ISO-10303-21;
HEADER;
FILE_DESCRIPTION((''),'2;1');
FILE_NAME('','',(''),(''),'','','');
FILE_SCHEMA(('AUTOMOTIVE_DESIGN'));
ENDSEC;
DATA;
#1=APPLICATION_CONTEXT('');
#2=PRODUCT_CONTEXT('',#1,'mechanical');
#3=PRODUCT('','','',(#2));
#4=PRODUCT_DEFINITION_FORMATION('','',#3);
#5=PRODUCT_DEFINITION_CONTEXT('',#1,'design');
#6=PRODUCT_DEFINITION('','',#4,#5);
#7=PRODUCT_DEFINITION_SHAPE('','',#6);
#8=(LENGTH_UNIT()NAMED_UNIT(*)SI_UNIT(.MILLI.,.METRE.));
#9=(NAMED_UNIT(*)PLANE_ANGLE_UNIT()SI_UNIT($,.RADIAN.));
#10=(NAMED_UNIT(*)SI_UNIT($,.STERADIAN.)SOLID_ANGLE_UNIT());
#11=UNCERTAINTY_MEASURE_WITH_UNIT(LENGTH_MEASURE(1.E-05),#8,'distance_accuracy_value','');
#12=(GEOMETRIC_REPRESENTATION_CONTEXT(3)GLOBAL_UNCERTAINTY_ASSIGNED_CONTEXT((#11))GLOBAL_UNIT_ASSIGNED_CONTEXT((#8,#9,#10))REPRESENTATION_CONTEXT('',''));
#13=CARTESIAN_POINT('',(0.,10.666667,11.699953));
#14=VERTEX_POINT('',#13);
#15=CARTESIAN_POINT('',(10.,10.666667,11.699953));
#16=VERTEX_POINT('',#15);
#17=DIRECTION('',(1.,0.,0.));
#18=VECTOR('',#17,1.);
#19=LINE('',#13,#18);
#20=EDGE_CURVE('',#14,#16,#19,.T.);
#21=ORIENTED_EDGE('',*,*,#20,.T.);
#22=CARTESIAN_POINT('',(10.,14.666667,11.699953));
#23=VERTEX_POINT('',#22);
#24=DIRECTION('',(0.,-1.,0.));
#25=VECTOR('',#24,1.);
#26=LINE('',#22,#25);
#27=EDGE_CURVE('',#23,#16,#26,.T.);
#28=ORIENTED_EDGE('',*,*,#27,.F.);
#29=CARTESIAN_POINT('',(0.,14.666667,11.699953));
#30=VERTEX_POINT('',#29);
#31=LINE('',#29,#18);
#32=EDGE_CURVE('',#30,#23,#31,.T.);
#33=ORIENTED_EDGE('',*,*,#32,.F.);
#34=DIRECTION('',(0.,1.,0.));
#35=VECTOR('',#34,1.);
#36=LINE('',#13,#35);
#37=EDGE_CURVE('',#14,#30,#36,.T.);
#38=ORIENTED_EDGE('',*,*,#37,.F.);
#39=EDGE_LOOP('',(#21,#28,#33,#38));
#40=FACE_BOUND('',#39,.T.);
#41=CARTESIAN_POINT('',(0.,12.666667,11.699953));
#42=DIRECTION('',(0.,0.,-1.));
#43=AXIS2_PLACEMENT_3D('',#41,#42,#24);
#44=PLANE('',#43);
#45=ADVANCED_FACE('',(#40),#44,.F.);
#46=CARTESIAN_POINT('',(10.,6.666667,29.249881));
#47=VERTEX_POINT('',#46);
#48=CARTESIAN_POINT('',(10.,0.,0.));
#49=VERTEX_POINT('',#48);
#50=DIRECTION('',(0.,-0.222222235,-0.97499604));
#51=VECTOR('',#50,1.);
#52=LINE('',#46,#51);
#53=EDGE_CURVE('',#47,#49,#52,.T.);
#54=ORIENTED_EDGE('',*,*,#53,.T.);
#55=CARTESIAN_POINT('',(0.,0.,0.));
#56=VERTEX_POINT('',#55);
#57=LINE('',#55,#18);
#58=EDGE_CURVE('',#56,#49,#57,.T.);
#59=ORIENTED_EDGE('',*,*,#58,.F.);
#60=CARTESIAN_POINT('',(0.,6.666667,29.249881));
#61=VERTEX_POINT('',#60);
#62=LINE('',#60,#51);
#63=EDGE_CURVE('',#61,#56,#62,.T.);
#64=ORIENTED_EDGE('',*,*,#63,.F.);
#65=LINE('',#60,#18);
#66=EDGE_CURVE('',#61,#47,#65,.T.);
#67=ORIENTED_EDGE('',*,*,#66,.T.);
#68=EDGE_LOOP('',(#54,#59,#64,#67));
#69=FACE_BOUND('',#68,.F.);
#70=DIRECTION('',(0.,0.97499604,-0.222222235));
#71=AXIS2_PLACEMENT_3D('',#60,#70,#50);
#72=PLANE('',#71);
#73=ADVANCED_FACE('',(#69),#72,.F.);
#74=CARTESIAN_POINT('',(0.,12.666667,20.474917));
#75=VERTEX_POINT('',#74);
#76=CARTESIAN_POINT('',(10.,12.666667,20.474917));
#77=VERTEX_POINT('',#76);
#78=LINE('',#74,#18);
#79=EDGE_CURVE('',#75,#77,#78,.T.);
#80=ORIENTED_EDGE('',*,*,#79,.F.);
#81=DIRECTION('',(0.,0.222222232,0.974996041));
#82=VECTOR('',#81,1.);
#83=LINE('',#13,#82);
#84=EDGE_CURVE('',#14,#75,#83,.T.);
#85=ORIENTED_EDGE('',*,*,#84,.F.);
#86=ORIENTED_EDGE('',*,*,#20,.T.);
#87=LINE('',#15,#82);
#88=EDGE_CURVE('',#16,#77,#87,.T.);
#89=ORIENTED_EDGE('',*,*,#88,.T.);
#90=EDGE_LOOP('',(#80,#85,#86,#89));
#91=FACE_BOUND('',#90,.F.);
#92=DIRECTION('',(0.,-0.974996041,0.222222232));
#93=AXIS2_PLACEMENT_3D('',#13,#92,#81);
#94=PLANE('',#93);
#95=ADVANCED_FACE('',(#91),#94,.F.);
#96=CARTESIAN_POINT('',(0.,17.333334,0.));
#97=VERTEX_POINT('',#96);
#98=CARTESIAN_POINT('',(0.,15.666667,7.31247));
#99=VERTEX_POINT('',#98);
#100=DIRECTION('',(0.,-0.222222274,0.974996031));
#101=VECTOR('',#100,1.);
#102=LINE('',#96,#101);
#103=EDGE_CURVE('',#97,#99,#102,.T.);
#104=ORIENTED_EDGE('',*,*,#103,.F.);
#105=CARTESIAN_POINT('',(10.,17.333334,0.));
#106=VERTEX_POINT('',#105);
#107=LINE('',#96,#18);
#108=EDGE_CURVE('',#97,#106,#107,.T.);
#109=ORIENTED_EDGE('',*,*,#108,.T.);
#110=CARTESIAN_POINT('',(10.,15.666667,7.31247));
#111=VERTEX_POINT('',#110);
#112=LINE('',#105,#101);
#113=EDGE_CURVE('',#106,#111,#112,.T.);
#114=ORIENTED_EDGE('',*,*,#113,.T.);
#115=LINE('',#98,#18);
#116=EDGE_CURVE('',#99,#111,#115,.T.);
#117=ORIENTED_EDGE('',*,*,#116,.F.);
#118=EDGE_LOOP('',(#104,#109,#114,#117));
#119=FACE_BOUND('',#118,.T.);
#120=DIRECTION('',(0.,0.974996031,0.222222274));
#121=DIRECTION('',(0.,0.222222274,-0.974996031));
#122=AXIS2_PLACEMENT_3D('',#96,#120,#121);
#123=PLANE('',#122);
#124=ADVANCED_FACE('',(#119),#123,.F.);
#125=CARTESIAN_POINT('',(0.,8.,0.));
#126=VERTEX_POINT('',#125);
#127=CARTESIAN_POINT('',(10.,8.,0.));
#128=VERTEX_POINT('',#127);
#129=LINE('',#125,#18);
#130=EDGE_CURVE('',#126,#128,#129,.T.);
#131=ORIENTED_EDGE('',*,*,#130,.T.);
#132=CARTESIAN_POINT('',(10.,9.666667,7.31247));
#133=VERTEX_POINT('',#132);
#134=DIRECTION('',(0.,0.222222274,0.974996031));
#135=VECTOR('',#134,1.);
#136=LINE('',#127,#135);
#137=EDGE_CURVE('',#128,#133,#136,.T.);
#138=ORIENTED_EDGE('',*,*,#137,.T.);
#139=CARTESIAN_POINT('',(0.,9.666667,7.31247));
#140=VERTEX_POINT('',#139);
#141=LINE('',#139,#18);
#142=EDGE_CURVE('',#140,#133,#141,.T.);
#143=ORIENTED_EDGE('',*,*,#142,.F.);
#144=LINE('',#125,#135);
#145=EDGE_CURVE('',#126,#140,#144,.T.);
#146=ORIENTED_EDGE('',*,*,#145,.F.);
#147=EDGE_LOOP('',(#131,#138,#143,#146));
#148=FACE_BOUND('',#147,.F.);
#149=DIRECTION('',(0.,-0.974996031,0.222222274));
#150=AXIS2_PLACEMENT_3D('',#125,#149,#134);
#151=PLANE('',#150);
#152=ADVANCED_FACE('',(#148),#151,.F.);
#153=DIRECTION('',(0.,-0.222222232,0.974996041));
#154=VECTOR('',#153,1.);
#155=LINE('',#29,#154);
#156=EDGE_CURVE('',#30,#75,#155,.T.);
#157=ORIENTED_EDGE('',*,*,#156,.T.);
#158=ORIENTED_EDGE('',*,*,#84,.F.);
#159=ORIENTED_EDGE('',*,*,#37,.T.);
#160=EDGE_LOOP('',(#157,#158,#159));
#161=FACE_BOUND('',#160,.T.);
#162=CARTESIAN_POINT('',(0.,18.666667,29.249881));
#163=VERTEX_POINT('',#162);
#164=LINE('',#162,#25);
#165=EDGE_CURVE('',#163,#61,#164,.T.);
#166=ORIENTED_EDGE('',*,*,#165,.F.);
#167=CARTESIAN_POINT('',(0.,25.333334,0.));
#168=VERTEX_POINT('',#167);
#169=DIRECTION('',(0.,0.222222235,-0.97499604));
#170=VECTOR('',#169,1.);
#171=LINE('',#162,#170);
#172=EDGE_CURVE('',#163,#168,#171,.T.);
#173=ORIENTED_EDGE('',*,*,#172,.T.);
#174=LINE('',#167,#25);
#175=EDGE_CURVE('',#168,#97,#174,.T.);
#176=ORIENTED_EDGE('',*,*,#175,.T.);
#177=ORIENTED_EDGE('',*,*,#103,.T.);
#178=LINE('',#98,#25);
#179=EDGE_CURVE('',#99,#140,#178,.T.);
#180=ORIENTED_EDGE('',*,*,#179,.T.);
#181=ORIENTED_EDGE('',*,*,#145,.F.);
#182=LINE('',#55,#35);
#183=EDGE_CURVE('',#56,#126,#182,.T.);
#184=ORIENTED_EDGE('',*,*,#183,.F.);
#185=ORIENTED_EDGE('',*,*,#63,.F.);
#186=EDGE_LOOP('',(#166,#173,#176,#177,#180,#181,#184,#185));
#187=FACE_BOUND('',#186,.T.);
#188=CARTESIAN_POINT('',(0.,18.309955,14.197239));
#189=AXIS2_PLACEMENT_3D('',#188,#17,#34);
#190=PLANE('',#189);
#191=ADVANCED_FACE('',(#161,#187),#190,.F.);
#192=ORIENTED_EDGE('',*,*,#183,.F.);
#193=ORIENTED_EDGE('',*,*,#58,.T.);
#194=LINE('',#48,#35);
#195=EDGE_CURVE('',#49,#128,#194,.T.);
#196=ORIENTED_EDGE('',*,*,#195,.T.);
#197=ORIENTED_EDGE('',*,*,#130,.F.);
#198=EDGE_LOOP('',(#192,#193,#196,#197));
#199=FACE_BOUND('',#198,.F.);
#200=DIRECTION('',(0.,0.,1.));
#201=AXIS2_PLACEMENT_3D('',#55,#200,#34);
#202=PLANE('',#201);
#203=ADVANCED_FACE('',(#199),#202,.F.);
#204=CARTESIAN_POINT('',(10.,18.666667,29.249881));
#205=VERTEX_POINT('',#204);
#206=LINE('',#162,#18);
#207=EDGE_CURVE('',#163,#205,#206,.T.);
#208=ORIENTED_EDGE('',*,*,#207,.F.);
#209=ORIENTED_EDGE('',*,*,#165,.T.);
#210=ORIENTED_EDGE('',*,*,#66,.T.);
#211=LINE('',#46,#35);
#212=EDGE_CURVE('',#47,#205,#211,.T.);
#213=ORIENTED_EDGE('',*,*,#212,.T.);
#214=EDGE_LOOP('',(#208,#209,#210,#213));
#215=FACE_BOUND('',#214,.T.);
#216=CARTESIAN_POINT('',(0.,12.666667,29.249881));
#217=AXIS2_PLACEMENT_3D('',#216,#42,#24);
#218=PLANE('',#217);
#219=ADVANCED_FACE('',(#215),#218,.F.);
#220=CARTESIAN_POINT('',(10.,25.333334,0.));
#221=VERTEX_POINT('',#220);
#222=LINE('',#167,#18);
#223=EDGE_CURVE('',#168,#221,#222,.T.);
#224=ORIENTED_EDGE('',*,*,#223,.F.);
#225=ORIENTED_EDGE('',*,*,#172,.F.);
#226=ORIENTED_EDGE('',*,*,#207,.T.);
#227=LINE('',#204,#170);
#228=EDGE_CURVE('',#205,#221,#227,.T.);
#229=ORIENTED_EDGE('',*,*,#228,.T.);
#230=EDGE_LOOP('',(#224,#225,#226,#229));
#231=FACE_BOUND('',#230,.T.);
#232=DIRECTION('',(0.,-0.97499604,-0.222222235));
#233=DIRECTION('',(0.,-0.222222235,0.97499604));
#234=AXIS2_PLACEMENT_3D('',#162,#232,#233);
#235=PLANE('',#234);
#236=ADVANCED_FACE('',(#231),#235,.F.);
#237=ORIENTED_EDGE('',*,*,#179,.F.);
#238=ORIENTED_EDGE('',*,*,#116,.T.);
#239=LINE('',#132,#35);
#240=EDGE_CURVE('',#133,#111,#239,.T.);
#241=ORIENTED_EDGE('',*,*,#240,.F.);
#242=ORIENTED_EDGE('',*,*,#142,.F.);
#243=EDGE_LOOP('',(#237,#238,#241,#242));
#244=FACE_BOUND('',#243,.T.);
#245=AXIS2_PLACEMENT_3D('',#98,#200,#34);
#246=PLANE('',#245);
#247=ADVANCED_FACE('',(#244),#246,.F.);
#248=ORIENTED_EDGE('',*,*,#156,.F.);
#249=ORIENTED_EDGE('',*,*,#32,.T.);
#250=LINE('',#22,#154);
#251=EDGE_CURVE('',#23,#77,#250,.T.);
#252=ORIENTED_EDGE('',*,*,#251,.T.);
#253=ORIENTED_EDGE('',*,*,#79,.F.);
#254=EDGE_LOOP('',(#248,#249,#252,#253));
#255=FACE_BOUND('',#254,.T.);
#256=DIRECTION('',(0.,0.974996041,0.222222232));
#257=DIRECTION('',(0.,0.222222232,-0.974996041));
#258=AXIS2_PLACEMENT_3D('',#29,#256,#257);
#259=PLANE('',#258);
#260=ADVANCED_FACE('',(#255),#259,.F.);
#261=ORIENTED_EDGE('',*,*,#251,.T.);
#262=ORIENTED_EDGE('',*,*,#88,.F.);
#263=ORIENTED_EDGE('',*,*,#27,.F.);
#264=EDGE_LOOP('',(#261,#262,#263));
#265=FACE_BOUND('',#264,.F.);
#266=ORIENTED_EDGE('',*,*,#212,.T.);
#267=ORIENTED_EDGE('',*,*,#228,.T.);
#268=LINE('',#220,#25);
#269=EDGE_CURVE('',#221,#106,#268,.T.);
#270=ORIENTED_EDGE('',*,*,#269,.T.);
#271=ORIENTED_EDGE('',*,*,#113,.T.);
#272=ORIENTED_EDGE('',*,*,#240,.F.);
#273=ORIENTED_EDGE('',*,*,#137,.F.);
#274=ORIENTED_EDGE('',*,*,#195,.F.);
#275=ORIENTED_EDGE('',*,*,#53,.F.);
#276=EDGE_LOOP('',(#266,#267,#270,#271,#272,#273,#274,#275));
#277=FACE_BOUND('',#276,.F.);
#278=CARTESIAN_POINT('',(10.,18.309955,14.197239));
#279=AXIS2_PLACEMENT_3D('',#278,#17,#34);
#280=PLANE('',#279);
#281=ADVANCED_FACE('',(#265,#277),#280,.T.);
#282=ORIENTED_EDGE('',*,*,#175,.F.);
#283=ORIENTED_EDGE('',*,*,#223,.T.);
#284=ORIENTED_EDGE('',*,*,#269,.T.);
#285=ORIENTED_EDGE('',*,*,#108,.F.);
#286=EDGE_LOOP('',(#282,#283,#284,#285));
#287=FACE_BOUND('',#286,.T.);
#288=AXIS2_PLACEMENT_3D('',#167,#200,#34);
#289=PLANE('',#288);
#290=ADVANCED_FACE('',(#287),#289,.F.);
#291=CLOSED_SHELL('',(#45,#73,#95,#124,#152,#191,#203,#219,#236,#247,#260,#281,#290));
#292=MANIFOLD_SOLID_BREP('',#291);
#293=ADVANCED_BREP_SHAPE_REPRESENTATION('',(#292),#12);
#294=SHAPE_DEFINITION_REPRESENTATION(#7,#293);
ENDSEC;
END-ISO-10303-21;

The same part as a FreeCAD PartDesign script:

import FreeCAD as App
import Part
import Sketcher
from FreeCAD import Vector
Q = App.Units.Quantity


def add_polygon(sketch, points):
    """Adds a closed chain of lines whose ends are joined by coincident constraints."""
    first, n = sketch.GeometryCount, len(points)
    for a, b in zip(points, points[1:] + points[:1]):
        sketch.addGeometry(Part.LineSegment(App.Vector(*a, 0), App.Vector(*b, 0)), False)
    for i in range(n):
        sketch.addConstraint(Sketcher.Constraint("Coincident", first + i, 2, first + (i + 1) % n, 1))

doc = App.newDocument("Part")
body = doc.addObject("PartDesign::Body", "Body")

sketch1 = doc.addObject("Sketcher::SketchObject", "Sketch")
body.addObject(sketch1)
sketch1.AttachmentSupport = (doc.YZ_Plane, [""])
sketch1.MapMode = "FlatFace"
add_polygon(sketch1, [(6.7, 29.2), (0, 0), (8, 0), (9.7, 7.3), (12.7, 7.3), (12.7, 11.7), (10.7, 11.7), (12.7, 20.5), (12.7, 29.2)])
sketch1.addConstraint([
    Sketcher.Constraint("Horizontal", 1),
    Sketcher.Constraint("Horizontal", 3),
    Sketcher.Constraint("Vertical", 4),
    Sketcher.Constraint("Horizontal", 5),
    Sketcher.Constraint("Vertical", 7),
    Sketcher.Constraint("Horizontal", 8),
    Sketcher.Constraint("Coincident", 0, 2, -1, 1),
    Sketcher.Constraint("Parallel", 0, 2),
    Sketcher.Constraint("Parallel", 2, 6),
    Sketcher.Constraint("Vertical", 4, 2, 6, 2),
    Sketcher.Constraint("DistanceX", 1, 1, 1, 2, Q("8 mm")),
    Sketcher.Constraint("DistanceX", 3, 1, 3, 2, Q("3 mm")),
    Sketcher.Constraint("DistanceX", 5, 2, 5, 1, Q("2 mm")),
    Sketcher.Constraint("DistanceX", 8, 2, 8, 1, Q("6 mm")),
    Sketcher.Constraint("Distance", 0, Q("30 mm")),
    Sketcher.Constraint("Distance", 6, Q("9 mm")),
    Sketcher.Constraint("DistanceY", 4, 1, 4, 2, Q("4.387483 mm")),
])
pad1 = doc.addObject("PartDesign::Pad", "Pad")
body.addObject(pad1)
pad1.Profile = sketch1
pad1.Length = 10
body2 = doc.addObject("PartDesign::Body", "Body001")
doc.recompute()

body2.BaseFeature = body
doc.recompute()

mirroring = doc.addObject("Part::Mirroring", "Mirroring")
mirroring.Source = body
mirroring.Base = Vector(5, 12.666667, 9.506211)
mirroring.Normal = Vector(0, 1, 0)
body3 = doc.addObject("PartDesign::Body", "Body002")
body3.BaseFeature = mirroring
boolean = doc.addObject("PartDesign::Boolean", "Boolean")
body2.addObject(boolean)
boolean.Type = "Fuse"
boolean.addObjects([body3])
doc.recompute()
mirroring.Visibility = False

doc.recompute()
